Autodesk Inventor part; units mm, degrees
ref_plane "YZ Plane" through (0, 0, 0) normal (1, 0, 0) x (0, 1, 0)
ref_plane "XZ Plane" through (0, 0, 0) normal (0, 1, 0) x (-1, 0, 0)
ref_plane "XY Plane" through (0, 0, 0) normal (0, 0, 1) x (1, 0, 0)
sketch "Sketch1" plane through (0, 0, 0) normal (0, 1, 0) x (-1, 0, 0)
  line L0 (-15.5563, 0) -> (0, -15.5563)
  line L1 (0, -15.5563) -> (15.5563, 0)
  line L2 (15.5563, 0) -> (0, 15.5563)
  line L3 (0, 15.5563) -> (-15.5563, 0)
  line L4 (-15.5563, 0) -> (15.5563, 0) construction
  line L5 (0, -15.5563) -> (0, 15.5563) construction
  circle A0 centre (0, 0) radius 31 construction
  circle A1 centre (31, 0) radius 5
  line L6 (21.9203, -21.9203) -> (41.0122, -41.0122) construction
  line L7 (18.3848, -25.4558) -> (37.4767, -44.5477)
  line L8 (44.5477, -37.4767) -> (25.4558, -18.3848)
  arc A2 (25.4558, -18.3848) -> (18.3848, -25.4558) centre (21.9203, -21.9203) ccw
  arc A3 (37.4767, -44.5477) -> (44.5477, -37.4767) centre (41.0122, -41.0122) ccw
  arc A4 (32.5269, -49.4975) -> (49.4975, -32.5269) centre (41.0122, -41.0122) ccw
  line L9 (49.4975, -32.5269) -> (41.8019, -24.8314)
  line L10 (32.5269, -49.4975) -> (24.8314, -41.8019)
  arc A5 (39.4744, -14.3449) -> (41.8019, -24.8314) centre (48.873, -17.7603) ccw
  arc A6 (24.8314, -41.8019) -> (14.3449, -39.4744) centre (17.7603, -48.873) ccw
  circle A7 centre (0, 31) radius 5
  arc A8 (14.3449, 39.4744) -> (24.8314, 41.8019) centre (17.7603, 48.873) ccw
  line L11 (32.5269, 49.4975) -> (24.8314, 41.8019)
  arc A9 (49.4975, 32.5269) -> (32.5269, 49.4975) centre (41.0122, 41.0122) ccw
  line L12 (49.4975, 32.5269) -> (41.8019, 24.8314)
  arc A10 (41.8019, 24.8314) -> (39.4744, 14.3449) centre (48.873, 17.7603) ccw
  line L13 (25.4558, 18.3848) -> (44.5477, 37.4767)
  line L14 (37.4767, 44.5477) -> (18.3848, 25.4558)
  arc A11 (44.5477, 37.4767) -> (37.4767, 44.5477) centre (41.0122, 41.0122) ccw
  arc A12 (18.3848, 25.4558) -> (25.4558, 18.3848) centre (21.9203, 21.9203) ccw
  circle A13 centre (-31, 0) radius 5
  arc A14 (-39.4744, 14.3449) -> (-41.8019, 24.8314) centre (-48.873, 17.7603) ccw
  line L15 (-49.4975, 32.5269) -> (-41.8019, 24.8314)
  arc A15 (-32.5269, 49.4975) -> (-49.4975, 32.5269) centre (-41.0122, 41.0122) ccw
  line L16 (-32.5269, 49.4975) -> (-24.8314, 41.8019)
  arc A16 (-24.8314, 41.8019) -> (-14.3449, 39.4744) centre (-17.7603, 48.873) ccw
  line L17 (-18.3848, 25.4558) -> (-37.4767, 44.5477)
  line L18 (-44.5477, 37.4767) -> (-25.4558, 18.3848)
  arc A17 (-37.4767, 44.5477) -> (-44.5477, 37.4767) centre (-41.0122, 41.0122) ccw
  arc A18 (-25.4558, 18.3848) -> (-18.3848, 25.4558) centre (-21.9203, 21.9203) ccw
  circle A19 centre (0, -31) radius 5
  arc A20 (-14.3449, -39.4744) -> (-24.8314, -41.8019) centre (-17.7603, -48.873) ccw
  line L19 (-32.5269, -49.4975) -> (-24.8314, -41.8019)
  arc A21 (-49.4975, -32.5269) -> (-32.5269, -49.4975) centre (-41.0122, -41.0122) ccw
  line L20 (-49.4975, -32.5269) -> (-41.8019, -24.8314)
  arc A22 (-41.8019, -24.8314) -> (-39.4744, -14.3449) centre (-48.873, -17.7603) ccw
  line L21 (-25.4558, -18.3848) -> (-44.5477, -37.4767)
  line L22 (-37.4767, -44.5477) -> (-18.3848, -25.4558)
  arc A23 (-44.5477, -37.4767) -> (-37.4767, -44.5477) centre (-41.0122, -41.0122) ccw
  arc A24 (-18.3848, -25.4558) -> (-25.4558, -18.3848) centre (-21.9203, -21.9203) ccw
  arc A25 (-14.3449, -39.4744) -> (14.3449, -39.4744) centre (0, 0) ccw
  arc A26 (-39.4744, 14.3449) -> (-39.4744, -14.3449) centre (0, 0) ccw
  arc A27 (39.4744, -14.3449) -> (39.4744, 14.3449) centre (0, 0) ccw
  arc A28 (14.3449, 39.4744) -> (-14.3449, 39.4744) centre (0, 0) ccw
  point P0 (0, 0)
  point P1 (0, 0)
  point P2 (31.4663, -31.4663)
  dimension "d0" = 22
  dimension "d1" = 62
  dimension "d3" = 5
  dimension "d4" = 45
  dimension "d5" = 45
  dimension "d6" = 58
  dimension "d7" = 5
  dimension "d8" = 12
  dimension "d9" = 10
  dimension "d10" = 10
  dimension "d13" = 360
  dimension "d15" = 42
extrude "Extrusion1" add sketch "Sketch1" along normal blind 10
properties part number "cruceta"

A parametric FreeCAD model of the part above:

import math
import FreeCAD as App
import Part
import Sketcher
from FreeCAD import Vector

doc = App.newDocument("Part")
body = doc.addObject("PartDesign::Body", "Body")

# Sketch on XZ plane
sketch1 = doc.addObject("Sketcher::SketchObject", "Sketch")
body.addObject(sketch1)
sketch1.AttachmentSupport = (doc.XZ_Plane, [""])
sketch1.MapMode = "FlatFace"
sketch1.addGeometry(Part.LineSegment(Vector(-24.8, -41.8, 0), Vector(-32.5, -49.5, 0)), False)
sketch1.addGeometry(Part.ArcOfCircle(Part.Circle(Vector(-41, -41, 0), Vector(0, 0, 1), 12), math.radians(135), math.radians(315)), False)
sketch1.addGeometry(Part.LineSegment(Vector(-49.5, -32.5, 0), Vector(-41.8, -24.8, 0)), False)
sketch1.addGeometry(Part.ArcOfCircle(Part.Circle(Vector(-48.9, -17.8, 0), Vector(0, 0, 1), 10), math.radians(-45), math.radians(20)), False)
sketch1.addGeometry(Part.ArcOfCircle(Part.Circle(Vector(0, 0, 0), Vector(0, 0, 1), 42), math.radians(160), math.radians(200)), False)
sketch1.addGeometry(Part.ArcOfCircle(Part.Circle(Vector(-48.9, 17.8, 0), Vector(0, 0, 1), 10), math.radians(-20), math.radians(45)), False)
sketch1.addGeometry(Part.LineSegment(Vector(-41.8, 24.8, 0), Vector(-49.5, 32.5, 0)), False)
sketch1.addGeometry(Part.ArcOfCircle(Part.Circle(Vector(-41, 41, 0), Vector(0, 0, 1), 12), math.radians(45), math.radians(225)), False)
sketch1.addGeometry(Part.LineSegment(Vector(-32.5, 49.5, 0), Vector(-24.8, 41.8, 0)), False)
sketch1.addGeometry(Part.ArcOfCircle(Part.Circle(Vector(-17.8, 48.9, 0), Vector(0, 0, 1), 10), math.radians(-135), math.radians(-70)), False)
sketch1.addGeometry(Part.ArcOfCircle(Part.Circle(Vector(0, 0, 0), Vector(0, 0, 1), 42), math.radians(70), math.radians(110)), False)
sketch1.addGeometry(Part.ArcOfCircle(Part.Circle(Vector(17.8, 48.9, 0), Vector(0, 0, 1), 10), math.radians(-110), math.radians(-45)), False)
sketch1.addGeometry(Part.LineSegment(Vector(24.8, 41.8, 0), Vector(32.5, 49.5, 0)), False)
sketch1.addGeometry(Part.ArcOfCircle(Part.Circle(Vector(41, 41, 0), Vector(0, 0, 1), 12), math.radians(-45), math.radians(135)), False)
sketch1.addGeometry(Part.LineSegment(Vector(49.5, 32.5, 0), Vector(41.8, 24.8, 0)), False)
sketch1.addGeometry(Part.ArcOfCircle(Part.Circle(Vector(48.9, 17.8, 0), Vector(0, 0, 1), 10), math.radians(135), math.radians(200)), False)
sketch1.addGeometry(Part.ArcOfCircle(Part.Circle(Vector(0, 0, 0), Vector(0, 0, 1), 42), math.radians(-20), math.radians(20)), False)
sketch1.addGeometry(Part.ArcOfCircle(Part.Circle(Vector(48.9, -17.8, 0), Vector(0, 0, 1), 10), math.radians(160), math.radians(225)), False)
sketch1.addGeometry(Part.LineSegment(Vector(41.8, -24.8, 0), Vector(49.5, -32.5, 0)), False)
sketch1.addGeometry(Part.ArcOfCircle(Part.Circle(Vector(41, -41, 0), Vector(0, 0, 1), 12), math.radians(-135), math.radians(45)), False)
sketch1.addGeometry(Part.LineSegment(Vector(32.5, -49.5, 0), Vector(24.8, -41.8, 0)), False)
sketch1.addGeometry(Part.ArcOfCircle(Part.Circle(Vector(17.8, -48.9, 0), Vector(0, 0, 1), 10), math.radians(45), math.radians(110)), False)
sketch1.addGeometry(Part.ArcOfCircle(Part.Circle(Vector(0, 0, 0), Vector(0, 0, 1), 42), math.radians(-110), math.radians(-70)), False)
sketch1.addGeometry(Part.ArcOfCircle(Part.Circle(Vector(-17.8, -48.9, 0), Vector(0, 0, 1), 10), math.radians(70), math.radians(135)), False)
sketch1.addGeometry(Part.LineSegment(Vector(44.5, -37.5, 0), Vector(25.5, -18.4, 0)), False)
sketch1.addGeometry(Part.ArcOfCircle(Part.Circle(Vector(21.9, -21.9, 0), Vector(0, 0, 1), 5), math.radians(45), math.radians(225)), False)
sketch1.addGeometry(Part.LineSegment(Vector(18.4, -25.5, 0), Vector(37.5, -44.5, 0)), False)
sketch1.addGeometry(Part.ArcOfCircle(Part.Circle(Vector(41, -41, 0), Vector(0, 0, 1), 5), math.radians(-135), math.radians(45)), False)
sketch1.addGeometry(Part.Circle(Vector(0, -31, 0), Vector(0, 0, 1), 5), False)
sketch1.addGeometry(Part.LineSegment(Vector(-37.5, -44.5, 0), Vector(-18.4, -25.5, 0)), False)
sketch1.addGeometry(Part.ArcOfCircle(Part.Circle(Vector(-21.9, -21.9, 0), Vector(0, 0, 1), 5), math.radians(-45), math.radians(135)), False)
sketch1.addGeometry(Part.LineSegment(Vector(-25.5, -18.4, 0), Vector(-44.5, -37.5, 0)), False)
sketch1.addGeometry(Part.ArcOfCircle(Part.Circle(Vector(-41, -41, 0), Vector(0, 0, 1), 5), math.radians(135), math.radians(315)), False)
sketch1.addGeometry(Part.Circle(Vector(31, 0, 0), Vector(0, 0, 1), 5), False)
sketch1.addGeometry(Part.LineSegment(Vector(37.5, 44.5, 0), Vector(18.4, 25.5, 0)), False)
sketch1.addGeometry(Part.ArcOfCircle(Part.Circle(Vector(21.9, 21.9, 0), Vector(0, 0, 1), 5), math.radians(135), math.radians(315)), False)
sketch1.addGeometry(Part.LineSegment(Vector(25.5, 18.4, 0), Vector(44.5, 37.5, 0)), False)
sketch1.addGeometry(Part.ArcOfCircle(Part.Circle(Vector(41, 41, 0), Vector(0, 0, 1), 5), math.radians(-45), math.radians(135)), False)
sketch1.addGeometry(Part.LineSegment(Vector(0, -15.6, 0), Vector(15.6, 0, 0)), False)
sketch1.addGeometry(Part.LineSegment(Vector(15.6, 0, 0), Vector(0, 15.6, 0)), False)
sketch1.addGeometry(Part.LineSegment(Vector(0, 15.6, 0), Vector(-15.6, 0, 0)), False)
sketch1.addGeometry(Part.LineSegment(Vector(-15.6, 0, 0), Vector(0, -15.6, 0)), False)
sketch1.addGeometry(Part.Circle(Vector(-31, 0, 0), Vector(0, 0, 1), 5), False)
sketch1.addGeometry(Part.Circle(Vector(0, 31, 0), Vector(0, 0, 1), 5), False)
sketch1.addGeometry(Part.LineSegment(Vector(-44.5, 37.5, 0), Vector(-25.5, 18.4, 0)), False)
sketch1.addGeometry(Part.ArcOfCircle(Part.Circle(Vector(-21.9, 21.9, 0), Vector(0, 0, 1), 5), math.radians(-135), math.radians(45)), False)
sketch1.addGeometry(Part.LineSegment(Vector(-18.4, 25.5, 0), Vector(-37.5, 44.5, 0)), False)
sketch1.addGeometry(Part.ArcOfCircle(Part.Circle(Vector(-41, 41, 0), Vector(0, 0, 1), 5), math.radians(45), math.radians(225)), False)
sketch1.addConstraint(Sketcher.Constraint("Tangent", 0, 2, 1, 2))
sketch1.addConstraint(Sketcher.Constraint("Tangent", 1, 1, 2, 1))
sketch1.addConstraint(Sketcher.Constraint("Tangent", 2, 2, 3, 1))
sketch1.addConstraint(Sketcher.Constraint("Tangent", 3, 2, 4, 2))
sketch1.addConstraint(Sketcher.Constraint("Tangent", 4, 1, 5, 1))
sketch1.addConstraint(Sketcher.Constraint("Tangent", 5, 2, 6, 1))
sketch1.addConstraint(Sketcher.Constraint("Tangent", 6, 2, 7, 2))
sketch1.addConstraint(Sketcher.Constraint("Tangent", 7, 1, 8, 1))
sketch1.addConstraint(Sketcher.Constraint("Tangent", 8, 2, 9, 1))
sketch1.addConstraint(Sketcher.Constraint("Tangent", 9, 2, 10, 2))
sketch1.addConstraint(Sketcher.Constraint("Tangent", 10, 1, 11, 1))
sketch1.addConstraint(Sketcher.Constraint("Tangent", 11, 2, 12, 1))
sketch1.addConstraint(Sketcher.Constraint("Tangent", 12, 2, 13, 2))
sketch1.addConstraint(Sketcher.Constraint("Tangent", 13, 1, 14, 1))
sketch1.addConstraint(Sketcher.Constraint("Tangent", 14, 2, 15, 1))
sketch1.addConstraint(Sketcher.Constraint("Tangent", 15, 2, 16, 2))
sketch1.addConstraint(Sketcher.Constraint("Tangent", 16, 1, 17, 1))
sketch1.addConstraint(Sketcher.Constraint("Tangent", 17, 2, 18, 1))
sketch1.addConstraint(Sketcher.Constraint("Tangent", 18, 2, 19, 2))
sketch1.addConstraint(Sketcher.Constraint("Tangent", 19, 1, 20, 1))
sketch1.addConstraint(Sketcher.Constraint("Tangent", 20, 2, 21, 1))
sketch1.addConstraint(Sketcher.Constraint("Tangent", 21, 2, 22, 2))
sketch1.addConstraint(Sketcher.Constraint("Tangent", 22, 1, 23, 1))
sketch1.addConstraint(Sketcher.Constraint("Tangent", 23, 2, 0, 1))
sketch1.addConstraint(Sketcher.Constraint("Tangent", 24, 2, 25, 1))
sketch1.addConstraint(Sketcher.Constraint("Tangent", 25, 2, 26, 1))
sketch1.addConstraint(Sketcher.Constraint("Tangent", 26, 2, 27, 1))
sketch1.addConstraint(Sketcher.Constraint("Tangent", 27, 2, 24, 1))
sketch1.addConstraint(Sketcher.Constraint("Tangent", 29, 2, 30, 1))
sketch1.addConstraint(Sketcher.Constraint("Tangent", 30, 2, 31, 1))
sketch1.addConstraint(Sketcher.Constraint("Tangent", 31, 2, 32, 1))
sketch1.addConstraint(Sketcher.Constraint("Tangent", 32, 2, 29, 1))
sketch1.addConstraint(Sketcher.Constraint("Tangent", 34, 2, 35, 1))
sketch1.addConstraint(Sketcher.Constraint("Tangent", 35, 2, 36, 1))
sketch1.addConstraint(Sketcher.Constraint("Tangent", 36, 2, 37, 1))
sketch1.addConstraint(Sketcher.Constraint("Tangent", 37, 2, 34, 1))
sketch1.addConstraint(Sketcher.Constraint("Coincident", 38, 2, 39, 1))
sketch1.addConstraint(Sketcher.Constraint("Coincident", 39, 2, 40, 1))
sketch1.addConstraint(Sketcher.Constraint("Coincident", 40, 2, 41, 1))
sketch1.addConstraint(Sketcher.Constraint("Coincident", 41, 2, 38, 1))
sketch1.addConstraint(Sketcher.Constraint("Tangent", 44, 2, 45, 1))
sketch1.addConstraint(Sketcher.Constraint("Tangent", 45, 2, 46, 1))
sketch1.addConstraint(Sketcher.Constraint("Tangent", 46, 2, 47, 1))
sketch1.addConstraint(Sketcher.Constraint("Tangent", 47, 2, 44, 1))
sketch1.addConstraint(Sketcher.Constraint("Coincident", 4, 3, -1, 1))
sketch1.addConstraint(Sketcher.Constraint("Coincident", 10, 3, -1, 1))
sketch1.addConstraint(Sketcher.Constraint("Coincident", 16, 3, -1, 1))
sketch1.addConstraint(Sketcher.Constraint("Coincident", 22, 3, -1, 1))
sketch1.addConstraint(Sketcher.Constraint("Coincident", 27, 3, 19, 3))
sketch1.addConstraint(Sketcher.Constraint("Coincident", 32, 3, 1, 3))
sketch1.addConstraint(Sketcher.Constraint("Coincident", 37, 3, 13, 3))
sketch1.addConstraint(Sketcher.Constraint("Coincident", 47, 3, 7, 3))
sketch1.addConstraint(Sketcher.Constraint("Equal", 3, 5))
sketch1.addConstraint(Sketcher.Constraint("Equal", 1, 7))
sketch1.addConstraint(Sketcher.Constraint("Equal", 5, 9))
sketch1.addConstraint(Sketcher.Constraint("Equal", 4, 10))
sketch1.addConstraint(Sketcher.Constraint("Equal", 9, 11))
sketch1.addConstraint(Sketcher.Constraint("Equal", 7, 13))
sketch1.addConstraint(Sketcher.Constraint("Equal", 11, 15))
sketch1.addConstraint(Sketcher.Constraint("Equal", 10, 16))
sketch1.addConstraint(Sketcher.Constraint("Equal", 15, 17))
sketch1.addConstraint(Sketcher.Constraint("Equal", 13, 19))
sketch1.addConstraint(Sketcher.Constraint("Equal", 17, 21))
sketch1.addConstraint(Sketcher.Constraint("Equal", 16, 22))
sketch1.addConstraint(Sketcher.Constraint("Equal", 21, 23))
sketch1.addConstraint(Sketcher.Constraint("Equal", 25, 27))
sketch1.addConstraint(Sketcher.Constraint("Equal", 27, 28))
sketch1.addConstraint(Sketcher.Constraint("Equal", 28, 30))
sketch1.addConstraint(Sketcher.Constraint("Equal", 30, 32))
sketch1.addConstraint(Sketcher.Constraint("Equal", 32, 33))
sketch1.addConstraint(Sketcher.Constraint("Equal", 33, 35))
sketch1.addConstraint(Sketcher.Constraint("Equal", 35, 37))
sketch1.addConstraint(Sketcher.Constraint("Equal", 37, 42))
sketch1.addConstraint(Sketcher.Constraint("Equal", 42, 43))
sketch1.addConstraint(Sketcher.Constraint("Equal", 43, 45))
sketch1.addConstraint(Sketcher.Constraint("Equal", 45, 47))
sketch1.addConstraint(Sketcher.Constraint("Symmetric", 1, 3, 13, 3, -1, 1))
sketch1.addConstraint(Sketcher.Constraint("Symmetric", 7, 3, 19, 3, -1, 1))
sketch1.addConstraint(Sketcher.Constraint("Symmetric", 30, 3, 35, 3, -1, 1))
sketch1.addConstraint(Sketcher.Constraint("Symmetric", 33, 3, 42, 3, -1, 1))
sketch1.addConstraint(Sketcher.Constraint("Symmetric", 28, 3, 43, 3, -1, 1))
sketch1.addConstraint(Sketcher.Constraint("Symmetric", 25, 3, 45, 3, -1, 1))
sketch1.addConstraint(Sketcher.Constraint("Symmetric", 38, 2, 40, 2, -1, 1))
sketch1.addConstraint(Sketcher.Constraint("Symmetric", 39, 2, 41, 2, -1, 1))
sketch1.addConstraint(Sketcher.Constraint("Symmetric", 7, 3, 13, 3, -2))
sketch1.addConstraint(Sketcher.Constraint("Symmetric", 25, 3, 30, 3, -2))
sketch1.addConstraint(Sketcher.Constraint("PointOnObject", 28, 3, -2))
sketch1.addConstraint(Sketcher.Constraint("PointOnObject", 33, 3, -1))
sketch1.addConstraint(Sketcher.Constraint("PointOnObject", 38, 2, -1))
sketch1.addConstraint(Sketcher.Constraint("PointOnObject", 39, 2, -2))
sketch1.addConstraint(Sketcher.Constraint("Parallel", 0, 2))
sketch1.addConstraint(Sketcher.Constraint("Perpendicular", 2, 6))
sketch1.addConstraint(Sketcher.Constraint("Parallel", 6, 8))
sketch1.addConstraint(Sketcher.Constraint("Perpendicular", 8, 12))
sketch1.addConstraint(Sketcher.Constraint("Parallel", 12, 14))
sketch1.addConstraint(Sketcher.Constraint("Perpendicular", 14, 18))
sketch1.addConstraint(Sketcher.Constraint("Parallel", 18, 20))
sketch1.addConstraint(Sketcher.Constraint("Parallel", 20, 24))
sketch1.addConstraint(Sketcher.Constraint("Perpendicular", 26, 29))
sketch1.addConstraint(Sketcher.Constraint("Parallel", 36, 38))
sketch1.addConstraint(Sketcher.Constraint("Equal", 0, 2))
sketch1.addConstraint(Sketcher.Constraint("Diameter", 28, 10.0))
sketch1.addConstraint(Sketcher.Constraint("Radius", 1, 12.0))
sketch1.addConstraint(Sketcher.Constraint("Radius", 3, 10.0))
sketch1.addConstraint(Sketcher.Constraint("Radius", 4, 42.0))
sketch1.addConstraint(Sketcher.Constraint("Distance", 38, 22.0))
sketch1.addConstraint(Sketcher.Constraint("Distance", 24, 27.0))
sketch1.addConstraint(Sketcher.Constraint("DistanceY", 28, 3, -1, 1, 31.0))
sketch1.addConstraint(Sketcher.Constraint("DistanceX", -1, 1, 33, 3, 31.0))
sketch1.addConstraint(Sketcher.Constraint("DistanceX", 0, 2, -1, 1, 32.527))
pad1 = doc.addObject("PartDesign::Pad", "Pad")
body.addObject(pad1)
pad1.Profile = sketch1
pad1.Length = 10
pad1.Reversed = True

doc.recompute()
